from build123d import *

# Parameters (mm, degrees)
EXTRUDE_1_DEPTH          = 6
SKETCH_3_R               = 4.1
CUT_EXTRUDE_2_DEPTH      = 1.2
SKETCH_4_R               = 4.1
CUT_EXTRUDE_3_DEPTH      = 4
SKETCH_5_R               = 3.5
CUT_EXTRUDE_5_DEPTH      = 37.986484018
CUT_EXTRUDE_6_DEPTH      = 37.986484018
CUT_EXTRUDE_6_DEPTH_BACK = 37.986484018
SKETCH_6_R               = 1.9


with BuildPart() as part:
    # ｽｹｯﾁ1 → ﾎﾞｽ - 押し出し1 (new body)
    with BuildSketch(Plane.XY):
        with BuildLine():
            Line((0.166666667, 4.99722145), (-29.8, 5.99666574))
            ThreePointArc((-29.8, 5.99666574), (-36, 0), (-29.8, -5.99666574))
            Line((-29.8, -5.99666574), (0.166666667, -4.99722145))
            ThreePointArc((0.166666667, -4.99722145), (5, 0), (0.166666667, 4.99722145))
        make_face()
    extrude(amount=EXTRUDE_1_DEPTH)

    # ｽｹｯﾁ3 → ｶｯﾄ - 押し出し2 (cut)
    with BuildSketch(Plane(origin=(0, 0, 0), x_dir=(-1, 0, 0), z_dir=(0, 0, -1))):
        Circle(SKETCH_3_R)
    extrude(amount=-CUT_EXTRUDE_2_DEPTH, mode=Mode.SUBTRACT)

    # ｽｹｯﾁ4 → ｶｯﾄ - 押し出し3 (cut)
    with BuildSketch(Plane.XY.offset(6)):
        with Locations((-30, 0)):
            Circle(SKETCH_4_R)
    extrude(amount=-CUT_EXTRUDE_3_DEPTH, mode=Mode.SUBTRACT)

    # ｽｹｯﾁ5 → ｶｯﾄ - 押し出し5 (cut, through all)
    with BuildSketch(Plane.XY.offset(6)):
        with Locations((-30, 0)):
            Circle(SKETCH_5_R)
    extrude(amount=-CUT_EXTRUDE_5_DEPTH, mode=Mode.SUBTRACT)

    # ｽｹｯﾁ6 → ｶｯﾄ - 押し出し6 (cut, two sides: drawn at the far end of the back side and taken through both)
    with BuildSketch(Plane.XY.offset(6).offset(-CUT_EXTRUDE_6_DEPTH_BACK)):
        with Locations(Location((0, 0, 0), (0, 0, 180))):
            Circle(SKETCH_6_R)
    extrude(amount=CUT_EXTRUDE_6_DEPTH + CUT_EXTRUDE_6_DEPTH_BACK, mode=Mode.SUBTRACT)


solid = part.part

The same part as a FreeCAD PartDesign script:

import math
import FreeCAD as App
import Part
import Sketcher

doc = App.newDocument("Part")
body = doc.addObject("PartDesign::Body", "Body")

# Sketch on XY plane
sketch1 = body.newObject("Sketcher::SketchObject", "Sketch")
sketch1.AttachmentSupport = (doc.getObject("XY_Plane"), [""])
sketch1.MapMode = "FlatFace"
sketch1.addGeometry(Part.LineSegment(App.Vector(0, 5, 0), App.Vector(-30, 6, 0)), False)
sketch1.addGeometry(Part.ArcOfCircle(Part.Circle(App.Vector(-30, 0, 0), App.Vector(0, 0, 1), 6), math.radians(88), math.radians(272)), False)
sketch1.addGeometry(Part.LineSegment(App.Vector(-30, -6, 0), App.Vector(0, -5, 0)), False)
sketch1.addGeometry(Part.ArcOfCircle(Part.Circle(App.Vector(0, 0, 0), App.Vector(0, 0, 1), 5), math.radians(-88), math.radians(88)), False)
sketch1.addConstraint(Sketcher.Constraint("Tangent", 0, 2, 1, 1))
sketch1.addConstraint(Sketcher.Constraint("Tangent", 1, 2, 2, 1))
sketch1.addConstraint(Sketcher.Constraint("Tangent", 2, 2, 3, 1))
sketch1.addConstraint(Sketcher.Constraint("Tangent", 3, 2, 0, 1))
sketch1.addConstraint(Sketcher.Constraint("Coincident", 3, 3, -1, 1))
sketch1.addConstraint(Sketcher.Constraint("PointOnObject", 1, 3, -1))
sketch1.addConstraint(Sketcher.Constraint("Radius", 1, 6.0))
sketch1.addConstraint(Sketcher.Constraint("Radius", 3, 5.0))
sketch1.addConstraint(Sketcher.Constraint("DistanceX", 1, 3, -1, 1, 30.0))
pad1 = body.newObject("PartDesign::Pad", "Pad")
pad1.Profile = sketch1
pad1.Length = 6

# Sketch on XY plane
sketch2 = body.newObject("Sketcher::SketchObject", "Sketch001")
sketch2.AttachmentSupport = (doc.getObject("XY_Plane"), [""])
sketch2.MapMode = "FlatFace"
sketch2.addGeometry(Part.Circle(App.Vector(0, 0, 0), App.Vector(0, 0, 1), 4.1), False)
sketch2.addConstraint(Sketcher.Constraint("Coincident", 0, 3, -1, 1))
sketch2.addConstraint(Sketcher.Constraint("Diameter", 0, 8.2))
pocket1 = body.newObject("PartDesign::Pocket", "Pocket")
pocket1.Profile = sketch2
pocket1.Length = 1.2
pocket1.Reversed = True

# Sketch on XY plane
sketch3 = body.newObject("Sketcher::SketchObject", "Sketch002")
sketch3.AttachmentSupport = (doc.getObject("XY_Plane"), [""])
sketch3.MapMode = "FlatFace"
sketch3.AttachmentOffset = App.Placement(App.Vector(0, 0, 6), App.Rotation())
sketch3.addGeometry(Part.Circle(App.Vector(-30, 0, 0), App.Vector(0, 0, 1), 4.1), False)
sketch3.addConstraint(Sketcher.Constraint("PointOnObject", 0, 3, -1))
sketch3.addConstraint(Sketcher.Constraint("Diameter", 0, 8.2))
sketch3.addConstraint(Sketcher.Constraint("DistanceX", 0, 3, -1, 1, 30.0))
pocket2 = body.newObject("PartDesign::Pocket", "Pocket001")
pocket2.Profile = sketch3
pocket2.Length = 4

# Sketch on XY plane
sketch4 = body.newObject("Sketcher::SketchObject", "Sketch003")
sketch4.AttachmentSupport = (doc.getObject("XY_Plane"), [""])
sketch4.MapMode = "FlatFace"
sketch4.AttachmentOffset = App.Placement(App.Vector(0, 0, 6), App.Rotation())
sketch4.addGeometry(Part.Circle(App.Vector(-30, 0, 0), App.Vector(0, 0, 1), 3.5), False)
sketch4.addConstraint(Sketcher.Constraint("PointOnObject", 0, 3, -1))
sketch4.addConstraint(Sketcher.Constraint("Diameter", 0, 7.0))
sketch4.addConstraint(Sketcher.Constraint("DistanceX", 0, 3, -1, 1, 30.0))
pocket3 = body.newObject("PartDesign::Pocket", "Pocket002")
pocket3.Profile = sketch4
pocket3.Type = "ThroughAll"

# Sketch on XY plane
sketch5 = body.newObject("Sketcher::SketchObject", "Sketch004")
sketch5.AttachmentSupport = (doc.getObject("XY_Plane"), [""])
sketch5.MapMode = "FlatFace"
sketch5.AttachmentOffset = App.Placement(App.Vector(0, 0, 6), App.Rotation())
sketch5.addGeometry(Part.Circle(App.Vector(0, 0, 0), App.Vector(0, 0, 1), 1.9), False)
sketch5.addConstraint(Sketcher.Constraint("Coincident", 0, 3, -1, 1))
sketch5.addConstraint(Sketcher.Constraint("Diameter", 0, 3.8))
pocket4 = body.newObject("PartDesign::Pocket", "Pocket003")
pocket4.Profile = sketch5
pocket4.Type = "ThroughAll"
pocket4.Midplane = True

doc.recompute()
